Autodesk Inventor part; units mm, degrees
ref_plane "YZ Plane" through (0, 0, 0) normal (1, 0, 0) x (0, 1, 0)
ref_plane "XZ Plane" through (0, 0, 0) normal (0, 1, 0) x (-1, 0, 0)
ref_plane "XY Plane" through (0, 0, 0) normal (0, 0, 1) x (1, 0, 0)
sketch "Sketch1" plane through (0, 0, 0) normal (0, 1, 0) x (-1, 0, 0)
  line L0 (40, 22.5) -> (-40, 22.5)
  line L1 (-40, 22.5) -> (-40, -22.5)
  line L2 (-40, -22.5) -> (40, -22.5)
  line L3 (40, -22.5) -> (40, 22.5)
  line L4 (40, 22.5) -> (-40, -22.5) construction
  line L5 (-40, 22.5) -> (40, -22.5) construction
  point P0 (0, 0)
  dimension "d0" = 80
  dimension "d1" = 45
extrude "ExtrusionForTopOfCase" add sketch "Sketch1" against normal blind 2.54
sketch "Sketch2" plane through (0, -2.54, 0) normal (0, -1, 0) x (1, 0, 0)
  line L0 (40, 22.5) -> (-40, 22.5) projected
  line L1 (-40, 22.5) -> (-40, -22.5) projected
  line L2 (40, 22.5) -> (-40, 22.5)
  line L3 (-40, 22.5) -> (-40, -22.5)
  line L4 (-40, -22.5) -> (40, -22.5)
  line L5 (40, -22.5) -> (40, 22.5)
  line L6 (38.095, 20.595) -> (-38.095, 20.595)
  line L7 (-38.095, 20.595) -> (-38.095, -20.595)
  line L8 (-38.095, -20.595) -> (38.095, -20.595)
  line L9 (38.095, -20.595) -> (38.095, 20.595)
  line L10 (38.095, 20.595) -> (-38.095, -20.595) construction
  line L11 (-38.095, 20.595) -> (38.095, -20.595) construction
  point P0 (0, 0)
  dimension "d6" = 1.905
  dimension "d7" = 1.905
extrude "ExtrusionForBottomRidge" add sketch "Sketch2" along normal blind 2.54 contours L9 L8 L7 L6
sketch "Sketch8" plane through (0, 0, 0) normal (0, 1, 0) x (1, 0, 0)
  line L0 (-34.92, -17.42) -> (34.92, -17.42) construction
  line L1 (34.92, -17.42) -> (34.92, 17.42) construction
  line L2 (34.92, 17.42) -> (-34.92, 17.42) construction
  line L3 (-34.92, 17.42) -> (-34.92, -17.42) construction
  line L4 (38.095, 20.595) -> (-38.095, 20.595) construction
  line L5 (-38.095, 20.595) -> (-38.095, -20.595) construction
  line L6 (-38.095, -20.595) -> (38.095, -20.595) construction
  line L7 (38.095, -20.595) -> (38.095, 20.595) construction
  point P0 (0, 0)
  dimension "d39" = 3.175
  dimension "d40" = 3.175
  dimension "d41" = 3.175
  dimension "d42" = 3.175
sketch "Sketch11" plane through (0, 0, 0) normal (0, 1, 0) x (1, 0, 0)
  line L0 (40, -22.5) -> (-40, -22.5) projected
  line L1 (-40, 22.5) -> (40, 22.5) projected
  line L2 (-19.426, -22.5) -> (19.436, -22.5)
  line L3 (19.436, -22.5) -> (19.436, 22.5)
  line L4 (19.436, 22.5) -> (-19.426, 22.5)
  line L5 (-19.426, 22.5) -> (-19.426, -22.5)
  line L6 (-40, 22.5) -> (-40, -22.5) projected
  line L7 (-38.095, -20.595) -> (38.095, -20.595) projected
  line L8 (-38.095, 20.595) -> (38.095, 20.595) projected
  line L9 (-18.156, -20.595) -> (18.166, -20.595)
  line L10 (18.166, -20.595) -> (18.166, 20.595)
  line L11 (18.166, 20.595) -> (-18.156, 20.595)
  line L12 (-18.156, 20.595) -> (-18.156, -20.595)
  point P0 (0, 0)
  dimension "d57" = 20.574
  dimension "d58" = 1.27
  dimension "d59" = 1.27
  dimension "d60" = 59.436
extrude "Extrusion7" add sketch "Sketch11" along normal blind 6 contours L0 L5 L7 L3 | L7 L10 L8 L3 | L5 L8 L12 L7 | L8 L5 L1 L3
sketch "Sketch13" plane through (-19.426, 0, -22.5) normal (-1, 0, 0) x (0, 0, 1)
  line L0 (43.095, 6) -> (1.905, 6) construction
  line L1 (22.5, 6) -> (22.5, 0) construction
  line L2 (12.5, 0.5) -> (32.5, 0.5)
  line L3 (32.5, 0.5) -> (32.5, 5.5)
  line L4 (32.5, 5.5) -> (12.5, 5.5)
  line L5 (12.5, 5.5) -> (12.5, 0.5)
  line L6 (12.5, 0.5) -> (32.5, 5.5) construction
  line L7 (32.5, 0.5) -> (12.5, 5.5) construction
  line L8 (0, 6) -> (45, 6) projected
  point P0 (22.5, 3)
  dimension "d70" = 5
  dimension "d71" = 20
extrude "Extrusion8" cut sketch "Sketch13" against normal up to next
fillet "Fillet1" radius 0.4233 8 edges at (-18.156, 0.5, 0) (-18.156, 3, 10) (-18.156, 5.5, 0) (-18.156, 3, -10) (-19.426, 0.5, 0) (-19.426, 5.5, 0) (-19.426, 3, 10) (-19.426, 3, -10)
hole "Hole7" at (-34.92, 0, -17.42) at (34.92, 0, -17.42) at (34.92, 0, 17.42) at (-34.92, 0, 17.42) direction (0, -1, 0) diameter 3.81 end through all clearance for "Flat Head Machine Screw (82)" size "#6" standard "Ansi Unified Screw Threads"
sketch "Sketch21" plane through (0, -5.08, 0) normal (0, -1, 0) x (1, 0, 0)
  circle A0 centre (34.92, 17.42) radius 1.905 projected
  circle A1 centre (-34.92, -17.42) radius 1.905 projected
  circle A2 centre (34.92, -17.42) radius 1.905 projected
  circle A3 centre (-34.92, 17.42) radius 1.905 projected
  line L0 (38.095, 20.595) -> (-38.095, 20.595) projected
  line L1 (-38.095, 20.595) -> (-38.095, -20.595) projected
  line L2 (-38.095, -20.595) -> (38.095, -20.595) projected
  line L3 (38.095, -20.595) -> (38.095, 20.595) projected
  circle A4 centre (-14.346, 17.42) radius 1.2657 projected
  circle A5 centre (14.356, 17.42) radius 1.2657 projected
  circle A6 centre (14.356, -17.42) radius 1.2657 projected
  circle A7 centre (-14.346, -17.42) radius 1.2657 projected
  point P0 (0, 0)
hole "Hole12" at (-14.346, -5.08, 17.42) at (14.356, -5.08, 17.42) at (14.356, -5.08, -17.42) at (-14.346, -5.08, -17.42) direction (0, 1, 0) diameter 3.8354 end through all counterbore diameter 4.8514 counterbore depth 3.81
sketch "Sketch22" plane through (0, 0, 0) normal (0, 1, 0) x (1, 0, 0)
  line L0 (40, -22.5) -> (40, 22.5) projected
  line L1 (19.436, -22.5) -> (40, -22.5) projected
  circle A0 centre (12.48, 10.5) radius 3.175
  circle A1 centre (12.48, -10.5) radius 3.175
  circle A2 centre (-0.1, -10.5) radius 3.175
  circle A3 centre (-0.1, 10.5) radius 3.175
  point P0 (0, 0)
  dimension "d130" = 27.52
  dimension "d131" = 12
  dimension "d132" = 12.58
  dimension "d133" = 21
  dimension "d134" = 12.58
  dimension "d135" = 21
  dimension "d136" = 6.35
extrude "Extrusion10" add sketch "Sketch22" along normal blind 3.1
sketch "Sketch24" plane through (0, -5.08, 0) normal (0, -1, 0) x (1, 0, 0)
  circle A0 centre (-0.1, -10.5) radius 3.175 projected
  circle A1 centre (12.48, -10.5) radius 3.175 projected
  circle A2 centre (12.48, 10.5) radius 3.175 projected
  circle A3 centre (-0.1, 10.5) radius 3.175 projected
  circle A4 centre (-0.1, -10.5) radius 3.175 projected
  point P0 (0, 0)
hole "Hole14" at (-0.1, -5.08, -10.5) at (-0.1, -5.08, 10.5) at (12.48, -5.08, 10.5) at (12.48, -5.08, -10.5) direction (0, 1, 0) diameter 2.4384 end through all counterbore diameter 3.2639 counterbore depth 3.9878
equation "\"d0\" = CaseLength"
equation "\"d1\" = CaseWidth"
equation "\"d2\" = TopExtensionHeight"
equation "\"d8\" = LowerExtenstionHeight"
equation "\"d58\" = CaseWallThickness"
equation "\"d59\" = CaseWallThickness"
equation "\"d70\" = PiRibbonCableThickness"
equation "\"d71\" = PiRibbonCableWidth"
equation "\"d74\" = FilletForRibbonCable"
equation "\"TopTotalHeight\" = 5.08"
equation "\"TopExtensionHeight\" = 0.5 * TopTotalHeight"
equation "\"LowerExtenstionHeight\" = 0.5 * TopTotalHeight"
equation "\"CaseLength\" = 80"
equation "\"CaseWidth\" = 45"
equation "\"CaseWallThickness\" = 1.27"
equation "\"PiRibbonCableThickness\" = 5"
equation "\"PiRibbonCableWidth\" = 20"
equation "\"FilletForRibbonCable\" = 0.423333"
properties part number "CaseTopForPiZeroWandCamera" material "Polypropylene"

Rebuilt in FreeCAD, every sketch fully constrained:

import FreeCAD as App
import Part
import Sketcher
from FreeCAD import Vector
Q = App.Units.Quantity


def edges_at(feature, points):
    """Names of the edges that pass closest to the given points."""
    edges = feature.Shape.Edges
    near = lambda p: min(range(len(edges)), key=lambda i: edges[i].distToShape(Part.Vertex(*p))[0])
    return sorted({f"Edge{near(p) + 1}" for p in points})

doc = App.newDocument("Part")
body = doc.addObject("PartDesign::Body", "Body")

sketch1 = doc.addObject("Sketcher::SketchObject", "Sketch")
body.addObject(sketch1)
sketch1.AttachmentSupport = (doc.XZ_Plane, [""])
sketch1.MapMode = "FlatFace"
sketch1.addGeometry([
    Part.LineSegment(Vector(-40, -22.5, 0), Vector(-40, 22.5, 0)),
    Part.LineSegment(Vector(-40, 22.5, 0), Vector(40, 22.5, 0)),
    Part.LineSegment(Vector(40, 22.5, 0), Vector(40, -22.5, 0)),
    Part.LineSegment(Vector(40, -22.5, 0), Vector(-40, -22.5, 0)),
], False)
sketch1.addConstraint([
    Sketcher.Constraint("Coincident", 0, 2, 1, 1),
    Sketcher.Constraint("Coincident", 1, 2, 2, 1),
    Sketcher.Constraint("Coincident", 2, 2, 3, 1),
    Sketcher.Constraint("Coincident", 3, 2, 0, 1),
    Sketcher.Constraint("Vertical", 0),
    Sketcher.Constraint("Horizontal", 1),
    Sketcher.Constraint("Vertical", 2),
    Sketcher.Constraint("Horizontal", 3),
    Sketcher.Constraint("Symmetric", 0, 2, 2, 2, -1, 1),
    Sketcher.Constraint("DistanceX", 1, 1, 1, 2, Q("3.1496 in")),
    Sketcher.Constraint("DistanceY", 0, 1, 0, 2, 45.0),
])
pad1 = doc.addObject("PartDesign::Pad", "Pad")
body.addObject(pad1)
pad1.Profile = sketch1
pad1.Length = Q("0.1 in")

sketch2 = doc.addObject("Sketcher::SketchObject", "Sketch001")
body.addObject(sketch2)
sketch2.AttachmentSupport = (doc.XZ_Plane, [""])
sketch2.MapMode = "FlatFace"
sketch2.AttachmentOffset = App.Placement(Vector(0, 0, 0.1 * 25.4), App.Rotation())
sketch2.addGeometry([
    Part.LineSegment(Vector(38.095, -20.595, 0), Vector(38.095, 20.595, 0)),
    Part.LineSegment(Vector(38.095, 20.595, 0), Vector(-38.095, 20.595, 0)),
    Part.LineSegment(Vector(-38.095, 20.595, 0), Vector(-38.095, -20.595, 0)),
    Part.LineSegment(Vector(-38.095, -20.595, 0), Vector(38.095, -20.595, 0)),
], False)
sketch2.addConstraint([
    Sketcher.Constraint("Coincident", 0, 2, 1, 1),
    Sketcher.Constraint("Coincident", 1, 2, 2, 1),
    Sketcher.Constraint("Coincident", 2, 2, 3, 1),
    Sketcher.Constraint("Coincident", 3, 2, 0, 1),
    Sketcher.Constraint("Vertical", 0),
    Sketcher.Constraint("Horizontal", 1),
    Sketcher.Constraint("Vertical", 2),
    Sketcher.Constraint("Horizontal", 3),
    Sketcher.Constraint("Symmetric", 0, 2, 2, 2, -1, 1),
    Sketcher.Constraint("DistanceX", 1, 2, 1, 1, Q("2.9996 in")),
    Sketcher.Constraint("DistanceY", 0, 1, 0, 2, 41.19),
])
pad2 = doc.addObject("PartDesign::Pad", "Pad001")
body.addObject(pad2)
pad2.Profile = sketch2
pad2.Length = Q("0.1 in")

sketch3 = doc.addObject("Sketcher::SketchObject", "Sketch002")
body.addObject(sketch3)
sketch3.AttachmentSupport = (doc.XZ_Plane, [""])
sketch3.MapMode = "FlatFace"
sketch3.addGeometry([
    Part.LineSegment(Vector(-19.426, 22.5, 0), Vector(19.436, 22.5, 0)),
    Part.LineSegment(Vector(19.436, 22.5, 0), Vector(19.436, -22.5, 0)),
    Part.LineSegment(Vector(19.436, -22.5, 0), Vector(-19.426, -22.5, 0)),
    Part.LineSegment(Vector(-19.426, -22.5, 0), Vector(-19.426, 22.5, 0)),
    Part.LineSegment(Vector(18.166, 20.595, 0), Vector(-18.156, 20.595, 0)),
    Part.LineSegment(Vector(-18.156, 20.595, 0), Vector(-18.156, -20.595, 0)),
    Part.LineSegment(Vector(-18.156, -20.595, 0), Vector(18.166, -20.595, 0)),
    Part.LineSegment(Vector(18.166, -20.595, 0), Vector(18.166, 20.595, 0)),
], False)
sketch3.addConstraint([
    Sketcher.Constraint("Coincident", 0, 2, 1, 1),
    Sketcher.Constraint("Coincident", 1, 2, 2, 1),
    Sketcher.Constraint("Coincident", 2, 2, 3, 1),
    Sketcher.Constraint("Coincident", 3, 2, 0, 1),
    Sketcher.Constraint("Coincident", 4, 2, 5, 1),
    Sketcher.Constraint("Coincident", 5, 2, 6, 1),
    Sketcher.Constraint("Coincident", 6, 2, 7, 1),
    Sketcher.Constraint("Coincident", 7, 2, 4, 1),
    Sketcher.Constraint("Horizontal", 0),
    Sketcher.Constraint("Vertical", 1),
    Sketcher.Constraint("Horizontal", 2),
    Sketcher.Constraint("Vertical", 3),
    Sketcher.Constraint("Horizontal", 4),
    Sketcher.Constraint("Vertical", 5),
    Sketcher.Constraint("Horizontal", 6),
    Sketcher.Constraint("Vertical", 7),
    Sketcher.Constraint("DistanceX", 3, 2, 4, 2, Q("0.05 in")),
    Sketcher.Constraint("DistanceX", 6, 2, 1, 2, Q("0.05 in")),
    Sketcher.Constraint("DistanceX", 0, 1, 0, 2, Q("1.53 in")),
    Sketcher.Constraint("DistanceY", 4, 2, 3, 2, Q("0.075 in")),
    Sketcher.Constraint("DistanceY", 2, 2, 5, 2, Q("0.075 in")),
    Sketcher.Constraint("DistanceY", 1, 2, 1, 1, 45.0),
    Sketcher.Constraint("DistanceX", -1, 1, 0, 2, Q("0.7652 in")),
    Sketcher.Constraint("DistanceY", -1, 1, 0, 2, 22.5),
])
pad3 = doc.addObject("PartDesign::Pad", "Pad002")
body.addObject(pad3)
pad3.Profile = sketch3
pad3.Length = 6
pad3.Reversed = True

sketch4 = doc.addObject("Sketcher::SketchObject", "Sketch003")
body.addObject(sketch4)
sketch4.AttachmentSupport = (doc.YZ_Plane, [""])
sketch4.MapMode = "FlatFace"
sketch4.AttachmentOffset = App.Placement(Vector(0, 0, -0.7648031 * 25.4), App.Rotation())
sketch4.addGeometry([
    Part.LineSegment(Vector(5.5, -10, 0), Vector(0.5, -10, 0)),
    Part.LineSegment(Vector(0.5, -10, 0), Vector(0.5, 10, 0)),
    Part.LineSegment(Vector(0.5, 10, 0), Vector(5.5, 10, 0)),
    Part.LineSegment(Vector(5.5, 10, 0), Vector(5.5, -10, 0)),
], False)
sketch4.addConstraint([
    Sketcher.Constraint("Coincident", 0, 2, 1, 1),
    Sketcher.Constraint("Coincident", 1, 2, 2, 1),
    Sketcher.Constraint("Coincident", 2, 2, 3, 1),
    Sketcher.Constraint("Coincident", 3, 2, 0, 1),
    Sketcher.Constraint("Horizontal", 0),
    Sketcher.Constraint("Vertical", 1),
    Sketcher.Constraint("Horizontal", 2),
    Sketcher.Constraint("Vertical", 3),
    Sketcher.Constraint("DistanceY", 1, 1, 1, 2, Q("0.7874 in")),
    Sketcher.Constraint("DistanceX", 0, 2, 0, 1, 5.0),
    Sketcher.Constraint("DistanceY", 0, 2, -1, 1, Q("0.3937 in")),
    Sketcher.Constraint("DistanceX", -1, 1, 0, 2, 0.5),
])
pocket1 = doc.addObject("PartDesign::Pocket", "Pocket")
body.addObject(pocket1)
pocket1.Profile = sketch4
pocket1.Type = "UpToFirst"
pocket1.Reversed = True
doc.recompute()

fillet = doc.addObject("PartDesign::Fillet", "Fillet")
body.addObject(fillet)
fillet.Base = (pocket1, edges_at(pocket1, [
    (-18.156, 0.5, 0),
    (-18.156, 3, 10),
    (-18.156, 5.5, 0),
    (-18.156, 3, -10),
    (-19.426, 0.5, 0),
    (-19.426, 5.5, 0),
    (-19.426, 3, 10),
    (-19.426, 3, -10),
]))
fillet.Radius = 0.4233

sketch5 = doc.addObject("Sketcher::SketchObject", "Sketch004")
body.addObject(sketch5)
sketch5.AttachmentSupport = (doc.XZ_Plane, [""])
sketch5.MapMode = "FlatFace"
sketch5.addGeometry([
    Part.Circle(Vector(-34.92, -17.42, 0), Vector(0, 0, 1), 1.905),
    Part.Circle(Vector(34.92, -17.42, 0), Vector(0, 0, 1), 1.905),
    Part.Circle(Vector(34.92, 17.42, 0), Vector(0, 0, 1), 1.905),
    Part.Circle(Vector(-34.92, 17.42, 0), Vector(0, 0, 1), 1.905),
], False)
sketch5.addConstraint([
    Sketcher.Constraint("Equal", 0, 1),
    Sketcher.Constraint("Equal", 1, 2),
    Sketcher.Constraint("Equal", 2, 3),
    Sketcher.Constraint("Symmetric", 0, 3, 2, 3, -1, 1),
    Sketcher.Constraint("Symmetric", 1, 3, 3, 3, -1, 1),
    Sketcher.Constraint("Symmetric", 0, 3, 1, 3, -2),
    Sketcher.Constraint("Diameter", 0, Q("0.15 in")),
    Sketcher.Constraint("DistanceX", 0, 3, -1, 1, Q("1.3748 in")),
    Sketcher.Constraint("DistanceY", 0, 3, -1, 1, 17.42),
])
doc.recompute()
hole = doc.addObject("PartDesign::Hole", "Hole")
body.addObject(hole)
hole.Profile = sketch5
hole.ThreadType = "None"
hole.Diameter = Q("0.15 in")
hole.DepthType = "ThroughAll"
hole.Reversed = True

sketch6 = doc.addObject("Sketcher::SketchObject", "Sketch005")
body.addObject(sketch6)
sketch6.AttachmentSupport = (doc.XZ_Plane, [""])
sketch6.MapMode = "FlatFace"
sketch6.AttachmentOffset = App.Placement(Vector(0, 0, 0.2 * 25.4), App.Rotation())
sketch6.addGeometry([
    Part.Circle(Vector(-14.346, 17.42, 0), Vector(0, 0, 1), 1.9177),
    Part.Circle(Vector(14.356, 17.42, 0), Vector(0, 0, 1), 1.9177),
    Part.Circle(Vector(14.356, -17.42, 0), Vector(0, 0, 1), 1.9177),
    Part.Circle(Vector(-14.346, -17.42, 0), Vector(0, 0, 1), 1.9177),
], False)
sketch6.addConstraint([
    Sketcher.Constraint("Equal", 0, 1),
    Sketcher.Constraint("Equal", 1, 2),
    Sketcher.Constraint("Equal", 2, 3),
    Sketcher.Constraint("Symmetric", 1, 3, 2, 3, -1),
    Sketcher.Constraint("Symmetric", 0, 3, 3, 3, -1),
    Sketcher.Constraint("Horizontal", 0, 3, 1, 3),
    Sketcher.Constraint("Diameter", 0, Q("0.151 in")),
    Sketcher.Constraint("DistanceX", 0, 3, 1, 3, Q("1.13 in")),
    Sketcher.Constraint("DistanceX", 0, 3, -1, 1, Q("0.5648 in")),
    Sketcher.Constraint("DistanceY", -1, 1, 0, 3, 17.42),
])
doc.recompute()
hole2 = doc.addObject("PartDesign::Hole", "Hole001")
body.addObject(hole2)
hole2.Profile = sketch6
hole2.ThreadType = "None"
hole2.Diameter = Q("0.151 in")
hole2.DepthType = "ThroughAll"
hole2.HoleCutType = "Counterbore"
hole2.HoleCutDiameter = Q("0.191 in")
hole2.HoleCutDepth = Q("0.15 in")

sketch7 = doc.addObject("Sketcher::SketchObject", "Sketch006")
body.addObject(sketch7)
sketch7.AttachmentSupport = (doc.XZ_Plane, [""])
sketch7.MapMode = "FlatFace"
sketch7.addGeometry([
    Part.Circle(Vector(12.48, -10.5, 0), Vector(0, 0, 1), 3.175),
    Part.Circle(Vector(12.48, 10.5, 0), Vector(0, 0, 1), 3.175),
    Part.Circle(Vector(-0.1, 10.5, 0), Vector(0, 0, 1), 3.175),
    Part.Circle(Vector(-0.1, -10.5, 0), Vector(0, 0, 1), 3.175),
], False)
sketch7.addConstraint([
    Sketcher.Constraint("Equal", 0, 1),
    Sketcher.Constraint("Equal", 1, 2),
    Sketcher.Constraint("Equal", 2, 3),
    Sketcher.Constraint("Symmetric", 0, 3, 1, 3, -1),
    Sketcher.Constraint("Symmetric", 2, 3, 3, 3, -1),
    Sketcher.Constraint("Horizontal", 1, 3, 2, 3),
    Sketcher.Constraint("Diameter", 0, Q("0.25 in")),
    Sketcher.Constraint("DistanceY", 0, 3, 1, 3, 21.0),
    Sketcher.Constraint("DistanceX", 2, 3, 1, 3, 12.58),
    Sketcher.Constraint("DistanceX", -1, 1, 0, 3, 12.48),
])
pad4 = doc.addObject("PartDesign::Pad", "Pad003")
body.addObject(pad4)
pad4.Profile = sketch7
pad4.Length = 3.1
pad4.Reversed = True

sketch8 = doc.addObject("Sketcher::SketchObject", "Sketch007")
body.addObject(sketch8)
sketch8.AttachmentSupport = (doc.XZ_Plane, [""])
sketch8.MapMode = "FlatFace"
sketch8.AttachmentOffset = App.Placement(Vector(0, 0, 0.2 * 25.4), App.Rotation())
sketch8.addGeometry([
    Part.Circle(Vector(-0.1, -10.5, 0), Vector(0, 0, 1), 1.2192),
    Part.Circle(Vector(-0.1, 10.5, 0), Vector(0, 0, 1), 1.2192),
    Part.Circle(Vector(12.48, 10.5, 0), Vector(0, 0, 1), 1.2192),
    Part.Circle(Vector(12.48, -10.5, 0), Vector(0, 0, 1), 1.2192),
], False)
sketch8.addConstraint([
    Sketcher.Constraint("Equal", 0, 1),
    Sketcher.Constraint("Equal", 1, 2),
    Sketcher.Constraint("Equal", 2, 3),
    Sketcher.Constraint("Symmetric", 0, 3, 1, 3, -1),
    Sketcher.Constraint("Symmetric", 2, 3, 3, 3, -1),
    Sketcher.Constraint("Horizontal", 1, 3, 2, 3),
    Sketcher.Constraint("Diameter", 0, Q("0.096 in")),
    Sketcher.Constraint("DistanceX", 0, 3, -1, 1, 0.1),
    Sketcher.Constraint("DistanceY", 0, 3, -1, 1, 10.5),
    Sketcher.Constraint("DistanceX", -1, 1, 2, 3, 12.48),
])
doc.recompute()
hole3 = doc.addObject("PartDesign::Hole", "Hole002")
body.addObject(hole3)
hole3.Profile = sketch8
hole3.ThreadType = "None"
hole3.Diameter = Q("0.096 in")
hole3.DepthType = "ThroughAll"
hole3.HoleCutType = "Counterbore"
hole3.HoleCutDiameter = Q("0.1285 in")
hole3.HoleCutDepth = Q("0.157 in")

doc.recompute()
